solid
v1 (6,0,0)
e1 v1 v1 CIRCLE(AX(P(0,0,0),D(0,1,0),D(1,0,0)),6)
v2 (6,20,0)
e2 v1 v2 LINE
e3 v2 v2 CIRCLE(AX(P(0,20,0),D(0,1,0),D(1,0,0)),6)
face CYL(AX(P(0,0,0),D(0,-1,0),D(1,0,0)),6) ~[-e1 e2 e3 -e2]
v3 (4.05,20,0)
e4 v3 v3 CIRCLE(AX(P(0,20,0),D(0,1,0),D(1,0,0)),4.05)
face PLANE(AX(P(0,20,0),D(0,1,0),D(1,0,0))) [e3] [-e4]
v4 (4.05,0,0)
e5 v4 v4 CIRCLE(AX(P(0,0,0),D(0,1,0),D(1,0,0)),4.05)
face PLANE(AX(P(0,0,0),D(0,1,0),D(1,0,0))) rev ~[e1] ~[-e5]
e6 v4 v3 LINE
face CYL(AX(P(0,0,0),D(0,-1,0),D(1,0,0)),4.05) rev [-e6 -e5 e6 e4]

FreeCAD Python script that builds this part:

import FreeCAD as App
import Part
import Sketcher

V = App.Vector
Q = App.Units.Quantity

doc = App.newDocument("Part")
body = doc.addObject("PartDesign::Body", "Body")

sketch1 = body.newObject("Sketcher::SketchObject", "Sketch")
sketch1.AttachmentSupport = (doc.getObject("XZ_Plane"), [""])
sketch1.MapMode = "FlatFace"
sketch1.addGeometry([
    Part.Circle(V(0, 0, 0), V(0, 0, 1), 6),
    Part.Circle(V(0, 0, 0), V(0, 0, 1), 4),
], False)
sketch1.addConstraint([
    Sketcher.Constraint("Coincident", 0, 3, -1, 1),
    Sketcher.Constraint("Coincident", 1, 3, -1, 1),
    Sketcher.Constraint("Diameter", 0, Q("12 mm")),
    Sketcher.Constraint("Diameter", 1, Q("8.1 mm")),
])
pad1 = body.newObject("PartDesign::Pad", "Pad")
pad1.Profile = sketch1
pad1.Length = 20
pad1.Reversed = True

doc.recompute()
